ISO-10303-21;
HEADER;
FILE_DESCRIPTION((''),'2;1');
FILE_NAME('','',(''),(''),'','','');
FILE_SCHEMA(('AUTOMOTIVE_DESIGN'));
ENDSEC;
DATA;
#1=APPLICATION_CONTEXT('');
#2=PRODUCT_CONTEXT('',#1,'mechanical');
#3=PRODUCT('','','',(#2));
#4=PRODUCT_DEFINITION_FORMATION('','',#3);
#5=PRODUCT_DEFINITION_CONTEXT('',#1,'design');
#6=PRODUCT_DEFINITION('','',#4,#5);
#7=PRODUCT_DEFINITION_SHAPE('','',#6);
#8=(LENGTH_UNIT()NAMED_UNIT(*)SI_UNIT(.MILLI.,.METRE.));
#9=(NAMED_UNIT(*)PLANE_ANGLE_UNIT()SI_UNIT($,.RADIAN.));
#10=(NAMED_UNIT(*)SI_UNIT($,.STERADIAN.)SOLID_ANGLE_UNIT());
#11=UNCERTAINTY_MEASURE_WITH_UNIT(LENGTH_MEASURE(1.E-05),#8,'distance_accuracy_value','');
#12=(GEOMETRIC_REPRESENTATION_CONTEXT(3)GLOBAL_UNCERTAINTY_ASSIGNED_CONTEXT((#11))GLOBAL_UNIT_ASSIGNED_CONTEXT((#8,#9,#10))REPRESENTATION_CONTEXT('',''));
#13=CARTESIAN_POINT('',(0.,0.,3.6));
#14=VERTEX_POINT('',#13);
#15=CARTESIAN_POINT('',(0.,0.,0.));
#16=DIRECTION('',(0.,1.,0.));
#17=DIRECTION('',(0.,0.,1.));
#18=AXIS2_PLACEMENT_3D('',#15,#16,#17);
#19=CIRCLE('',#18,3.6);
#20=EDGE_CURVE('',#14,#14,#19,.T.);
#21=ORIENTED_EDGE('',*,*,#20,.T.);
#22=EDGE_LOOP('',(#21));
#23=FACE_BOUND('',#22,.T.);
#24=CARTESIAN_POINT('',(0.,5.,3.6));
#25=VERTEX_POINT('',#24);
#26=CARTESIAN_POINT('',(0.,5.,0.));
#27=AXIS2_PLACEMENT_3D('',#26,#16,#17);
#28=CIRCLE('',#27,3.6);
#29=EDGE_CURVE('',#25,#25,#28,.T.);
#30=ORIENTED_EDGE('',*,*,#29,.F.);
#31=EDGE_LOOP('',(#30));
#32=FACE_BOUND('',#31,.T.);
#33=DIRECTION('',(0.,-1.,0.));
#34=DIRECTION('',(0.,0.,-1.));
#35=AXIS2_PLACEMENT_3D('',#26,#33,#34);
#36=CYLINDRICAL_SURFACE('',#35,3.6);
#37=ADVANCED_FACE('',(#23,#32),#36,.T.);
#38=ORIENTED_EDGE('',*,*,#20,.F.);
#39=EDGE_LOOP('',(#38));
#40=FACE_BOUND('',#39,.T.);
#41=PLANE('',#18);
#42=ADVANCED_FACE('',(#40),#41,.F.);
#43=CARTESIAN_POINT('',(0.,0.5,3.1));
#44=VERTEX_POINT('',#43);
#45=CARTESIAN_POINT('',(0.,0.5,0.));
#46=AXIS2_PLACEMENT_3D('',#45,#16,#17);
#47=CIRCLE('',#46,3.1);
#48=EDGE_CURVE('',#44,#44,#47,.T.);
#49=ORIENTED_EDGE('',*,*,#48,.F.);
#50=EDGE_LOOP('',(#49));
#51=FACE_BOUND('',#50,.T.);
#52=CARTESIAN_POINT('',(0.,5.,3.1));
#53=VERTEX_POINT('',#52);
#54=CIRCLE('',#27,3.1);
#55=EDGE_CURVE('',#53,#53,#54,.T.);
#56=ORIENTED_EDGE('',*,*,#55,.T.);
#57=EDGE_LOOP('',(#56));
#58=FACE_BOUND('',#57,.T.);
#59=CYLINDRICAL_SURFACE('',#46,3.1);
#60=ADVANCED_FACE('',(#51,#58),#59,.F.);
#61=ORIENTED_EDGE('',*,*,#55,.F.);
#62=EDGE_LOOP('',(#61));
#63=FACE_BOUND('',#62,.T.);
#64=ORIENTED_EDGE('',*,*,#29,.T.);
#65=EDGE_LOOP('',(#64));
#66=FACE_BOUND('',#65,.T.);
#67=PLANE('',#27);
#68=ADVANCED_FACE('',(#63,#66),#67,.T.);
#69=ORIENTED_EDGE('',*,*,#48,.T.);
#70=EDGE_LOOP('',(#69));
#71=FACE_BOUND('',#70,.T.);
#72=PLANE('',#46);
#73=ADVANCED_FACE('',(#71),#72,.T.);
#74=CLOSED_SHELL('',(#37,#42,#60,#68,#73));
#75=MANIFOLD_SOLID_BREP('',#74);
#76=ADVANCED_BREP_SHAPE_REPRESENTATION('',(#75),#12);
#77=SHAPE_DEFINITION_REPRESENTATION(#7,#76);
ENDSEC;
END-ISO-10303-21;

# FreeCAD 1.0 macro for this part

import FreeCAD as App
import Part
import Sketcher

doc = App.newDocument("Part")
params = doc.addObject("Spreadsheet::Sheet", "Params")
for row, (alias, value) in enumerate([
    ("sketch1_diameter", "7.2 mm"),
    ("pad1_length", "5 mm"),
    ("sketch2_diameter", "6.2 mm"),
    ("pocket1_length", "4.5 mm"),
], start=1):
    params.set(f"A{row}", alias)
    params.set(f"B{row}", "=" + value)
    params.setAlias(f"B{row}", alias)

body = doc.addObject("PartDesign::Body", "Body")

# Sketch on XZ plane
sketch1 = body.newObject("Sketcher::SketchObject", "Sketch")
sketch1.AttachmentSupport = (doc.getObject("XZ_Plane"), [""])
sketch1.MapMode = "FlatFace"
sketch1.addGeometry(Part.Circle(App.Vector(0, 0, 0), App.Vector(0, 0, 1), 3.6), False)
sketch1.addConstraint(Sketcher.Constraint("Coincident", 0, 3, -1, 1))
sketch1.addConstraint(Sketcher.Constraint("Diameter", 0, 7.2))
sketch1.setExpression("Constraints[1]", "Params.sketch1_diameter")
pad1 = body.newObject("PartDesign::Pad", "Pad")
pad1.Profile = sketch1
pad1.setExpression("Length", "Params.pad1_length")
pad1.Reversed = True

# Sketch on XZ plane
sketch2 = body.newObject("Sketcher::SketchObject", "Sketch001")
sketch2.AttachmentSupport = (doc.getObject("XZ_Plane"), [""])
sketch2.MapMode = "FlatFace"
sketch2.AttachmentOffset = App.Placement(App.Vector(0, 0, -5), App.Rotation())
sketch2.addGeometry(Part.Circle(App.Vector(0, 0, 0), App.Vector(0, 0, 1), 3.1), False)
sketch2.addConstraint(Sketcher.Constraint("Coincident", 0, 3, -1, 1))
sketch2.addConstraint(Sketcher.Constraint("Diameter", 0, 6.2))
sketch2.setExpression("Constraints[1]", "Params.sketch2_diameter")
pocket1 = body.newObject("PartDesign::Pocket", "Pocket")
pocket1.Profile = sketch2
pocket1.setExpression("Length", "Params.pocket1_length")
pocket1.Reversed = True

doc.recompute()
